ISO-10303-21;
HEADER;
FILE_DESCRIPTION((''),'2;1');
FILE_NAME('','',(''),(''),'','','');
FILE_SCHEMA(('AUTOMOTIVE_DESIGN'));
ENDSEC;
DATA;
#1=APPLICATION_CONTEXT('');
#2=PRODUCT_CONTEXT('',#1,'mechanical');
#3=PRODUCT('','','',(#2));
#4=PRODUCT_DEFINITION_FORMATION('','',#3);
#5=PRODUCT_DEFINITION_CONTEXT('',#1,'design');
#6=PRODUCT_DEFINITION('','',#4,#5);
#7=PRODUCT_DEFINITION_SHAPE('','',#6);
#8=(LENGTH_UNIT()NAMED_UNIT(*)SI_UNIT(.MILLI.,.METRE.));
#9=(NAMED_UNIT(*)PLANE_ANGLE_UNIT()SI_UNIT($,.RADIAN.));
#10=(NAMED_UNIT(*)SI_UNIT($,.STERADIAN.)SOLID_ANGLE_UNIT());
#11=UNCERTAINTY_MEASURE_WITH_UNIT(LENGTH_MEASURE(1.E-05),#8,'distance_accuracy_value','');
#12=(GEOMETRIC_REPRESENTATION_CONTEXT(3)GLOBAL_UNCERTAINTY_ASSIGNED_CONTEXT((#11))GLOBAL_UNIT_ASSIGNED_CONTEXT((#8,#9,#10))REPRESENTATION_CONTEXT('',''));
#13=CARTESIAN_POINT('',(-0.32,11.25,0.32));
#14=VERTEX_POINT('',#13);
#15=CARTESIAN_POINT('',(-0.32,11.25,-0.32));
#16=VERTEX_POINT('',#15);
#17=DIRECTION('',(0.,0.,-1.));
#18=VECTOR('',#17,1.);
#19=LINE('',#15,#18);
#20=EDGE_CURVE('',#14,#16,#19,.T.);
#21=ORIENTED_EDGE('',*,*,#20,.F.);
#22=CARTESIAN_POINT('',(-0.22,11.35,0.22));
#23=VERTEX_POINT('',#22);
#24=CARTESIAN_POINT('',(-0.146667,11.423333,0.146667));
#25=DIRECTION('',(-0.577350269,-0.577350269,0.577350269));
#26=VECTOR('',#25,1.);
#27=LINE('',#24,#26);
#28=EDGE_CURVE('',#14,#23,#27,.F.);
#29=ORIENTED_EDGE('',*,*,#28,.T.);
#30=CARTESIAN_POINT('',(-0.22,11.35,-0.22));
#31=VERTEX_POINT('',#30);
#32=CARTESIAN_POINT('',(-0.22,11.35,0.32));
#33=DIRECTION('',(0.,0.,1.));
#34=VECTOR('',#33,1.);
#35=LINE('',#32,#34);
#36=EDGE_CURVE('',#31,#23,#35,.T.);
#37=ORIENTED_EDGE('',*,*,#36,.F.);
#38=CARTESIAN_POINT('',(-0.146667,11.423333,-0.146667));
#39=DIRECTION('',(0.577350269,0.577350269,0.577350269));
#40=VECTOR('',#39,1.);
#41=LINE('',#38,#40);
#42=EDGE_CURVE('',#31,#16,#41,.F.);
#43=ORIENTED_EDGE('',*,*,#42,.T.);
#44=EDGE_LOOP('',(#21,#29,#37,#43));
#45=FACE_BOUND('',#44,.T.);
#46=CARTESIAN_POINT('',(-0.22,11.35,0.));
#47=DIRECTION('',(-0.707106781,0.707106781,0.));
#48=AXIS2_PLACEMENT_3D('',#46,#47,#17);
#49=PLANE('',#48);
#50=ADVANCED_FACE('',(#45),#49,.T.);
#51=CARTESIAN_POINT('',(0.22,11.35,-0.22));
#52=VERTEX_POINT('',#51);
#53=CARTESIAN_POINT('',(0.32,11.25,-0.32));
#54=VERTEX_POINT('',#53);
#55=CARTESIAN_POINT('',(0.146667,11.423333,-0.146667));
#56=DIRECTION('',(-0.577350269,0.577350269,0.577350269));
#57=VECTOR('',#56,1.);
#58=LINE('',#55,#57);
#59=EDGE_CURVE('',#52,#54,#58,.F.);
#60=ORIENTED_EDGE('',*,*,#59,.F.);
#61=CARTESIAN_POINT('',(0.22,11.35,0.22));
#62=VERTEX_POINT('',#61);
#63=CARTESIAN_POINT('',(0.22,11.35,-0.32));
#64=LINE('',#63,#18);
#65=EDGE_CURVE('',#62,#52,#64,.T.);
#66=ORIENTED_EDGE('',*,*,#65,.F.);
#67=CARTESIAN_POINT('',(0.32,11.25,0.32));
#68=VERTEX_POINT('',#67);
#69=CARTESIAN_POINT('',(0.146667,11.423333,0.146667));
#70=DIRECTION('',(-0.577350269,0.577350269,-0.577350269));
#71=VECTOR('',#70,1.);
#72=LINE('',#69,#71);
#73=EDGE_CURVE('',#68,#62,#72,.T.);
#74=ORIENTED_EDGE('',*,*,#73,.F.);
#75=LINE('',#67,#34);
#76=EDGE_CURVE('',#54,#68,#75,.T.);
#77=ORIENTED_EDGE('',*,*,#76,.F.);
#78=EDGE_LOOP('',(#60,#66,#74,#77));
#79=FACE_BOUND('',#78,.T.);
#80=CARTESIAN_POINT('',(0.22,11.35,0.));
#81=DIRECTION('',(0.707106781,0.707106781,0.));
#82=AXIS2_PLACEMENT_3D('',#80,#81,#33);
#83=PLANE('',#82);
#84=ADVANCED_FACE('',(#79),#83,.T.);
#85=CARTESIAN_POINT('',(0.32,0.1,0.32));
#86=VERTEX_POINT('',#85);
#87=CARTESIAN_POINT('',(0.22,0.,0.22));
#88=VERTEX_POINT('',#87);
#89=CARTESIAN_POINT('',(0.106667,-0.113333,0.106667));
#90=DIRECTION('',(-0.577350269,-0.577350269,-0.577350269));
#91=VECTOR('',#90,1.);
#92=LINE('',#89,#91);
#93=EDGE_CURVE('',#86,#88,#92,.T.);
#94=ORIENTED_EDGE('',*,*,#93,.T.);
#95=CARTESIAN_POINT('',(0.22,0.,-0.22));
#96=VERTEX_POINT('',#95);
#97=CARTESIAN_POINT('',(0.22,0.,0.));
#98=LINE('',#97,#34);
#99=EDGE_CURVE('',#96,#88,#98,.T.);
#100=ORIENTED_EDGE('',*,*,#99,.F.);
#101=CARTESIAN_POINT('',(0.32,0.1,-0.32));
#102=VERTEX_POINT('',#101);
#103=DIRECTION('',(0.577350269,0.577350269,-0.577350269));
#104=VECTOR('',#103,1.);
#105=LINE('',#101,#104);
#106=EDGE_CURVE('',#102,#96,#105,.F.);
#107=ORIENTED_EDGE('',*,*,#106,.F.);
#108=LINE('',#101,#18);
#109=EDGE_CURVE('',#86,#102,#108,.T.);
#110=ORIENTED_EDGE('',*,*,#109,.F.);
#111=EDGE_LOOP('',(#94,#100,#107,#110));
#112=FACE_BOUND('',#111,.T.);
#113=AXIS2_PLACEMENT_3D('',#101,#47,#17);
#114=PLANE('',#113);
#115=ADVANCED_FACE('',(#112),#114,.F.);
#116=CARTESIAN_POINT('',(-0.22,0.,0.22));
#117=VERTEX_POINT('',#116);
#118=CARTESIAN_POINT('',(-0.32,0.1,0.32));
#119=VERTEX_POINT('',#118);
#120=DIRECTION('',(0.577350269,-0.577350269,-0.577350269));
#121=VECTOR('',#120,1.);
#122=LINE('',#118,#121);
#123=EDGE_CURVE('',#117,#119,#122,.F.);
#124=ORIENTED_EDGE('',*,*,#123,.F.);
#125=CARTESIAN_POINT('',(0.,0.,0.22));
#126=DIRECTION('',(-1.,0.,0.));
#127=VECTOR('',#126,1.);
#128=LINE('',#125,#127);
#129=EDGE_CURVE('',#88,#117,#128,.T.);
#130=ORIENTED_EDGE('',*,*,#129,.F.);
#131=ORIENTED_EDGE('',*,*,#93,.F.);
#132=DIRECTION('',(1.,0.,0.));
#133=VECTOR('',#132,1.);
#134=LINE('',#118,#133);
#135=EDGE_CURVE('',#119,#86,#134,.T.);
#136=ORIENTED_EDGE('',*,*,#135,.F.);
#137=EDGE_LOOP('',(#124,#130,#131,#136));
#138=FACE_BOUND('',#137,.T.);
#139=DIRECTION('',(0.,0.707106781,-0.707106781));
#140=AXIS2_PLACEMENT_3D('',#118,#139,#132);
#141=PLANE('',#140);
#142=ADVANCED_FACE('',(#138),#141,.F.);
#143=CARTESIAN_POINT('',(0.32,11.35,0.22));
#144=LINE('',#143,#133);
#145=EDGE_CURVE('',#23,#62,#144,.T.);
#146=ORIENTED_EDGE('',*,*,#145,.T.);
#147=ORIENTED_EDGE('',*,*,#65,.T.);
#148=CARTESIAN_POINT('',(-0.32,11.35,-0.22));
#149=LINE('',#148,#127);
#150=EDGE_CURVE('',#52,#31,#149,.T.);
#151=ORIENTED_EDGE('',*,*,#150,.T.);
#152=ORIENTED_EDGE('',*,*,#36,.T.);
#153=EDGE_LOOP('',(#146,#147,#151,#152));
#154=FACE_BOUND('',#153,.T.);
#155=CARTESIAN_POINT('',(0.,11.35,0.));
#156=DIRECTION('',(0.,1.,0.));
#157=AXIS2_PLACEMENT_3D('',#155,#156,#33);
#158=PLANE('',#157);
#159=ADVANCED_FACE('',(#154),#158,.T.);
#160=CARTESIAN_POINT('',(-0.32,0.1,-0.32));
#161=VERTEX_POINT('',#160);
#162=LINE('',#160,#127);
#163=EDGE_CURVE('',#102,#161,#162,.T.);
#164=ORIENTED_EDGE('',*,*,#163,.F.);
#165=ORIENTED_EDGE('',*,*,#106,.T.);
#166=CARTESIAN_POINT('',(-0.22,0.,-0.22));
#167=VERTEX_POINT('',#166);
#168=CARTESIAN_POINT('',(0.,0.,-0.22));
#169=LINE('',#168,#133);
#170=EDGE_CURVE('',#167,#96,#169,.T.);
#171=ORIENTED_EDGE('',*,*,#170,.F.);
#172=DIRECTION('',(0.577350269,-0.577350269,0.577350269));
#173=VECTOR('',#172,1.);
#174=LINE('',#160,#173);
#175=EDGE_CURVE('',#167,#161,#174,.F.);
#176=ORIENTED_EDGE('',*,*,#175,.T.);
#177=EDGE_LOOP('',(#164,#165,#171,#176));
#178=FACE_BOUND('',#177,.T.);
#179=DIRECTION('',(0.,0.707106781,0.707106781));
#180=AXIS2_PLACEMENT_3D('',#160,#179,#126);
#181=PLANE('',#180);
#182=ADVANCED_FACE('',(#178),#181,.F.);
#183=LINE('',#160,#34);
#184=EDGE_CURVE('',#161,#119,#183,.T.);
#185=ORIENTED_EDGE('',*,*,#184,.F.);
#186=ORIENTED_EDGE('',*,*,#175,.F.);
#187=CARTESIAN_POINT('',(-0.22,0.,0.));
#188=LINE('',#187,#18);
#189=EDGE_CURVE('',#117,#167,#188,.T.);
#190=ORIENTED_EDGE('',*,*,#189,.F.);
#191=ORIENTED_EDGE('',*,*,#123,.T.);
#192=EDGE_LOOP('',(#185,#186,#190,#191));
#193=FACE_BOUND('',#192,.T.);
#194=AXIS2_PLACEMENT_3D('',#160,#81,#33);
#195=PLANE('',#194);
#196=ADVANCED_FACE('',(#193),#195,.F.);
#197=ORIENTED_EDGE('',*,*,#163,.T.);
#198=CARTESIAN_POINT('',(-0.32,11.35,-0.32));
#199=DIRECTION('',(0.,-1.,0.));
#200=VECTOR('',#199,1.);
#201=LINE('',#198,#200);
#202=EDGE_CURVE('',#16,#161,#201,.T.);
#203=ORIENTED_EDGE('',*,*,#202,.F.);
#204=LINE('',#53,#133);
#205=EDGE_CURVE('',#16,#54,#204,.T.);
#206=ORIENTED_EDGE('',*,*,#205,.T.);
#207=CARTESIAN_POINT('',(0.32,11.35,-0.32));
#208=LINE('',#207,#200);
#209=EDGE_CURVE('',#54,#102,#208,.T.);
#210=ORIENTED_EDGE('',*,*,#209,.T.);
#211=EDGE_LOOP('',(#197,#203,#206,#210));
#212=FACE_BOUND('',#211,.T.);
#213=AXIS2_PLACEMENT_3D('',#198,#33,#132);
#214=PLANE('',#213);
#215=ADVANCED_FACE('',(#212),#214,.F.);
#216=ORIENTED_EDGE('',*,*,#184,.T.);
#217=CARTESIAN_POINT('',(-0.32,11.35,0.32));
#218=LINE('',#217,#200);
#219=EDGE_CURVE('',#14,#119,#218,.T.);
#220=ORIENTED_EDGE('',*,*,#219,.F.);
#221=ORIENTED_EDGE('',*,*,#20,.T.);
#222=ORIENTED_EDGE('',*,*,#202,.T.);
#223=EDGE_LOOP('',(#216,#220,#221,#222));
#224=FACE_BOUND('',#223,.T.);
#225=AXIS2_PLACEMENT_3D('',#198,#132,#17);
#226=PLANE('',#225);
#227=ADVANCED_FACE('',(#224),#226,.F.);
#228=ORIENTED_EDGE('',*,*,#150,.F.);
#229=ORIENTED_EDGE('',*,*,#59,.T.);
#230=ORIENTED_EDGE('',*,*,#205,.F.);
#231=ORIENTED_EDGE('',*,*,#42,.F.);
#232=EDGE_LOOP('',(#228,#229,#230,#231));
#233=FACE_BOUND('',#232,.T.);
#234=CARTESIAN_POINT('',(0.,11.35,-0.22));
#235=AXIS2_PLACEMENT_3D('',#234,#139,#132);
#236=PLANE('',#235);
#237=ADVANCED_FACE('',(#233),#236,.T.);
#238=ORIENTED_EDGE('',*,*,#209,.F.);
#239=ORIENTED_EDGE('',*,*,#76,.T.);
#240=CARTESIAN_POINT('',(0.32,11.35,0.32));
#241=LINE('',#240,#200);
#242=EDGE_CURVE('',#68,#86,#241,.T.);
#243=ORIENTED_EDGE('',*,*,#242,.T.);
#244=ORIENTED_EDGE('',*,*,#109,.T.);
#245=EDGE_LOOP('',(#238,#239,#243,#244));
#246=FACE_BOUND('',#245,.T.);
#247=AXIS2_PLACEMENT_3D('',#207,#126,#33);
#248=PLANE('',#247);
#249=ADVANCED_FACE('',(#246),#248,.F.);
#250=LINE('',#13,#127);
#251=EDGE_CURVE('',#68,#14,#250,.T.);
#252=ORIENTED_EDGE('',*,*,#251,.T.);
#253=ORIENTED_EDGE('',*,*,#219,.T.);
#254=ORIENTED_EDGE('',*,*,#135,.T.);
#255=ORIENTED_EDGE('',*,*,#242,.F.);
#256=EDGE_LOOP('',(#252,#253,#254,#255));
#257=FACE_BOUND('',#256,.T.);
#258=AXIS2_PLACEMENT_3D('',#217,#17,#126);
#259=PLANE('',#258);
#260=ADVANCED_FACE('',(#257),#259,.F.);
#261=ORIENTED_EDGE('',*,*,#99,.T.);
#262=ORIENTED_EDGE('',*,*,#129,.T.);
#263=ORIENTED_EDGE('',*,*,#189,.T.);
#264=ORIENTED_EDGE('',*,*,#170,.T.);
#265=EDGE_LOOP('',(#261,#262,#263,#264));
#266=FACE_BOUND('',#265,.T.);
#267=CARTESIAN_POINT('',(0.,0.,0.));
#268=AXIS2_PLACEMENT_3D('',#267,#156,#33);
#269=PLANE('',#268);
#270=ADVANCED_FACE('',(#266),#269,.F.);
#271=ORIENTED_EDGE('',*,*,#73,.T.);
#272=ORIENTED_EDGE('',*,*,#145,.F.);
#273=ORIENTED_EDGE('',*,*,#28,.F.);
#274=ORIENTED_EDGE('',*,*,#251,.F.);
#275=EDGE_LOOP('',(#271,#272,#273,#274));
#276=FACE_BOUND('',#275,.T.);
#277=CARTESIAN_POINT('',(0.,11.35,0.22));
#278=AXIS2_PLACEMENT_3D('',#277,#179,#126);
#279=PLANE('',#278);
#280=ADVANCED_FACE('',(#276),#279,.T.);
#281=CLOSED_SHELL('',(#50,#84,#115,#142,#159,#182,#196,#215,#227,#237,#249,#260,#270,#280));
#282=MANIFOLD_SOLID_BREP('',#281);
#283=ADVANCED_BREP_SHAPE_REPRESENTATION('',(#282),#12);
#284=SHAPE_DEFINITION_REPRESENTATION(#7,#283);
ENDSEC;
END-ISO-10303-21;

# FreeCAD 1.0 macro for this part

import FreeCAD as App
import Part
import Sketcher
from FreeCAD import Vector
Q = App.Units.Quantity


def edges_at(feature, points):
    """Names of the edges that pass closest to the given points."""
    edges = feature.Shape.Edges
    near = lambda p: min(range(len(edges)), key=lambda i: edges[i].distToShape(Part.Vertex(*p))[0])
    return sorted({f"Edge{near(p) + 1}" for p in points})

doc = App.newDocument("Part")
body = doc.addObject("PartDesign::Body", "Body")

# Sketch on XZ plane
sketch1 = doc.addObject("Sketcher::SketchObject", "Sketch")
body.addObject(sketch1)
sketch1.AttachmentSupport = (doc.XZ_Plane, [""])
sketch1.MapMode = "FlatFace"
sketch1.addGeometry([
    Part.LineSegment(Vector(-0.3, -0.3, 0), Vector(-0.3, 0.3, 0)),
    Part.LineSegment(Vector(-0.3, 0.3, 0), Vector(0.3, 0.3, 0)),
    Part.LineSegment(Vector(0.3, 0.3, 0), Vector(0.3, -0.3, 0)),
    Part.LineSegment(Vector(0.3, -0.3, 0), Vector(-0.3, -0.3, 0)),
], False)
sketch1.addConstraint([
    Sketcher.Constraint("Coincident", 0, 2, 1, 1),
    Sketcher.Constraint("Coincident", 1, 2, 2, 1),
    Sketcher.Constraint("Coincident", 2, 2, 3, 1),
    Sketcher.Constraint("Coincident", 3, 2, 0, 1),
    Sketcher.Constraint("Vertical", 0),
    Sketcher.Constraint("Horizontal", 1),
    Sketcher.Constraint("Vertical", 2),
    Sketcher.Constraint("Horizontal", 3),
    Sketcher.Constraint("Symmetric", 0, 2, 2, 2, -1, 1),
    Sketcher.Constraint("Equal", 3, 0),
    Sketcher.Constraint("DistanceX", 1, 1, 1, 2, Q("0.64 mm")),
])

# Sketch on XY plane
sketch2 = doc.addObject("Sketcher::SketchObject", "Sketch001")
body.addObject(sketch2)
sketch2.AttachmentSupport = (doc.XY_Plane, [""])
sketch2.MapMode = "FlatFace"
sketch2.addGeometry(Part.LineSegment(Vector(0, 0, 0), Vector(0, 11, 0)), False)
sketch2.addConstraint([
    Sketcher.Constraint("Vertical", 0),
    Sketcher.Constraint("Coincident", 0, 1, -1, 1),
    Sketcher.Constraint("DistanceY", 0, 1, 0, 2, Q("11.35 mm")),
])
doc.recompute()

additivepipe = doc.addObject("PartDesign::AdditivePipe", "AdditivePipe")
body.addObject(additivepipe)
additivepipe.Profile = sketch1
additivepipe.Spine = (sketch2, ["Edge1"])
doc.recompute()

chamfer = doc.addObject("PartDesign::Chamfer", "Chamfer")
body.addObject(chamfer)
chamfer.Base = (additivepipe, edges_at(additivepipe, [
    (-0.32, 11.35, 0),
    (0, 11.35, 0.32),
    (0.32, 11.35, 0),
    (0, 0, 0.32),
    (-0.32, 0, 0),
    (0, 0, -0.32),
    (0.32, 0, 0),
    (0, 11.35, -0.32),
]))
chamfer.Size = 0.1

doc.recompute()
